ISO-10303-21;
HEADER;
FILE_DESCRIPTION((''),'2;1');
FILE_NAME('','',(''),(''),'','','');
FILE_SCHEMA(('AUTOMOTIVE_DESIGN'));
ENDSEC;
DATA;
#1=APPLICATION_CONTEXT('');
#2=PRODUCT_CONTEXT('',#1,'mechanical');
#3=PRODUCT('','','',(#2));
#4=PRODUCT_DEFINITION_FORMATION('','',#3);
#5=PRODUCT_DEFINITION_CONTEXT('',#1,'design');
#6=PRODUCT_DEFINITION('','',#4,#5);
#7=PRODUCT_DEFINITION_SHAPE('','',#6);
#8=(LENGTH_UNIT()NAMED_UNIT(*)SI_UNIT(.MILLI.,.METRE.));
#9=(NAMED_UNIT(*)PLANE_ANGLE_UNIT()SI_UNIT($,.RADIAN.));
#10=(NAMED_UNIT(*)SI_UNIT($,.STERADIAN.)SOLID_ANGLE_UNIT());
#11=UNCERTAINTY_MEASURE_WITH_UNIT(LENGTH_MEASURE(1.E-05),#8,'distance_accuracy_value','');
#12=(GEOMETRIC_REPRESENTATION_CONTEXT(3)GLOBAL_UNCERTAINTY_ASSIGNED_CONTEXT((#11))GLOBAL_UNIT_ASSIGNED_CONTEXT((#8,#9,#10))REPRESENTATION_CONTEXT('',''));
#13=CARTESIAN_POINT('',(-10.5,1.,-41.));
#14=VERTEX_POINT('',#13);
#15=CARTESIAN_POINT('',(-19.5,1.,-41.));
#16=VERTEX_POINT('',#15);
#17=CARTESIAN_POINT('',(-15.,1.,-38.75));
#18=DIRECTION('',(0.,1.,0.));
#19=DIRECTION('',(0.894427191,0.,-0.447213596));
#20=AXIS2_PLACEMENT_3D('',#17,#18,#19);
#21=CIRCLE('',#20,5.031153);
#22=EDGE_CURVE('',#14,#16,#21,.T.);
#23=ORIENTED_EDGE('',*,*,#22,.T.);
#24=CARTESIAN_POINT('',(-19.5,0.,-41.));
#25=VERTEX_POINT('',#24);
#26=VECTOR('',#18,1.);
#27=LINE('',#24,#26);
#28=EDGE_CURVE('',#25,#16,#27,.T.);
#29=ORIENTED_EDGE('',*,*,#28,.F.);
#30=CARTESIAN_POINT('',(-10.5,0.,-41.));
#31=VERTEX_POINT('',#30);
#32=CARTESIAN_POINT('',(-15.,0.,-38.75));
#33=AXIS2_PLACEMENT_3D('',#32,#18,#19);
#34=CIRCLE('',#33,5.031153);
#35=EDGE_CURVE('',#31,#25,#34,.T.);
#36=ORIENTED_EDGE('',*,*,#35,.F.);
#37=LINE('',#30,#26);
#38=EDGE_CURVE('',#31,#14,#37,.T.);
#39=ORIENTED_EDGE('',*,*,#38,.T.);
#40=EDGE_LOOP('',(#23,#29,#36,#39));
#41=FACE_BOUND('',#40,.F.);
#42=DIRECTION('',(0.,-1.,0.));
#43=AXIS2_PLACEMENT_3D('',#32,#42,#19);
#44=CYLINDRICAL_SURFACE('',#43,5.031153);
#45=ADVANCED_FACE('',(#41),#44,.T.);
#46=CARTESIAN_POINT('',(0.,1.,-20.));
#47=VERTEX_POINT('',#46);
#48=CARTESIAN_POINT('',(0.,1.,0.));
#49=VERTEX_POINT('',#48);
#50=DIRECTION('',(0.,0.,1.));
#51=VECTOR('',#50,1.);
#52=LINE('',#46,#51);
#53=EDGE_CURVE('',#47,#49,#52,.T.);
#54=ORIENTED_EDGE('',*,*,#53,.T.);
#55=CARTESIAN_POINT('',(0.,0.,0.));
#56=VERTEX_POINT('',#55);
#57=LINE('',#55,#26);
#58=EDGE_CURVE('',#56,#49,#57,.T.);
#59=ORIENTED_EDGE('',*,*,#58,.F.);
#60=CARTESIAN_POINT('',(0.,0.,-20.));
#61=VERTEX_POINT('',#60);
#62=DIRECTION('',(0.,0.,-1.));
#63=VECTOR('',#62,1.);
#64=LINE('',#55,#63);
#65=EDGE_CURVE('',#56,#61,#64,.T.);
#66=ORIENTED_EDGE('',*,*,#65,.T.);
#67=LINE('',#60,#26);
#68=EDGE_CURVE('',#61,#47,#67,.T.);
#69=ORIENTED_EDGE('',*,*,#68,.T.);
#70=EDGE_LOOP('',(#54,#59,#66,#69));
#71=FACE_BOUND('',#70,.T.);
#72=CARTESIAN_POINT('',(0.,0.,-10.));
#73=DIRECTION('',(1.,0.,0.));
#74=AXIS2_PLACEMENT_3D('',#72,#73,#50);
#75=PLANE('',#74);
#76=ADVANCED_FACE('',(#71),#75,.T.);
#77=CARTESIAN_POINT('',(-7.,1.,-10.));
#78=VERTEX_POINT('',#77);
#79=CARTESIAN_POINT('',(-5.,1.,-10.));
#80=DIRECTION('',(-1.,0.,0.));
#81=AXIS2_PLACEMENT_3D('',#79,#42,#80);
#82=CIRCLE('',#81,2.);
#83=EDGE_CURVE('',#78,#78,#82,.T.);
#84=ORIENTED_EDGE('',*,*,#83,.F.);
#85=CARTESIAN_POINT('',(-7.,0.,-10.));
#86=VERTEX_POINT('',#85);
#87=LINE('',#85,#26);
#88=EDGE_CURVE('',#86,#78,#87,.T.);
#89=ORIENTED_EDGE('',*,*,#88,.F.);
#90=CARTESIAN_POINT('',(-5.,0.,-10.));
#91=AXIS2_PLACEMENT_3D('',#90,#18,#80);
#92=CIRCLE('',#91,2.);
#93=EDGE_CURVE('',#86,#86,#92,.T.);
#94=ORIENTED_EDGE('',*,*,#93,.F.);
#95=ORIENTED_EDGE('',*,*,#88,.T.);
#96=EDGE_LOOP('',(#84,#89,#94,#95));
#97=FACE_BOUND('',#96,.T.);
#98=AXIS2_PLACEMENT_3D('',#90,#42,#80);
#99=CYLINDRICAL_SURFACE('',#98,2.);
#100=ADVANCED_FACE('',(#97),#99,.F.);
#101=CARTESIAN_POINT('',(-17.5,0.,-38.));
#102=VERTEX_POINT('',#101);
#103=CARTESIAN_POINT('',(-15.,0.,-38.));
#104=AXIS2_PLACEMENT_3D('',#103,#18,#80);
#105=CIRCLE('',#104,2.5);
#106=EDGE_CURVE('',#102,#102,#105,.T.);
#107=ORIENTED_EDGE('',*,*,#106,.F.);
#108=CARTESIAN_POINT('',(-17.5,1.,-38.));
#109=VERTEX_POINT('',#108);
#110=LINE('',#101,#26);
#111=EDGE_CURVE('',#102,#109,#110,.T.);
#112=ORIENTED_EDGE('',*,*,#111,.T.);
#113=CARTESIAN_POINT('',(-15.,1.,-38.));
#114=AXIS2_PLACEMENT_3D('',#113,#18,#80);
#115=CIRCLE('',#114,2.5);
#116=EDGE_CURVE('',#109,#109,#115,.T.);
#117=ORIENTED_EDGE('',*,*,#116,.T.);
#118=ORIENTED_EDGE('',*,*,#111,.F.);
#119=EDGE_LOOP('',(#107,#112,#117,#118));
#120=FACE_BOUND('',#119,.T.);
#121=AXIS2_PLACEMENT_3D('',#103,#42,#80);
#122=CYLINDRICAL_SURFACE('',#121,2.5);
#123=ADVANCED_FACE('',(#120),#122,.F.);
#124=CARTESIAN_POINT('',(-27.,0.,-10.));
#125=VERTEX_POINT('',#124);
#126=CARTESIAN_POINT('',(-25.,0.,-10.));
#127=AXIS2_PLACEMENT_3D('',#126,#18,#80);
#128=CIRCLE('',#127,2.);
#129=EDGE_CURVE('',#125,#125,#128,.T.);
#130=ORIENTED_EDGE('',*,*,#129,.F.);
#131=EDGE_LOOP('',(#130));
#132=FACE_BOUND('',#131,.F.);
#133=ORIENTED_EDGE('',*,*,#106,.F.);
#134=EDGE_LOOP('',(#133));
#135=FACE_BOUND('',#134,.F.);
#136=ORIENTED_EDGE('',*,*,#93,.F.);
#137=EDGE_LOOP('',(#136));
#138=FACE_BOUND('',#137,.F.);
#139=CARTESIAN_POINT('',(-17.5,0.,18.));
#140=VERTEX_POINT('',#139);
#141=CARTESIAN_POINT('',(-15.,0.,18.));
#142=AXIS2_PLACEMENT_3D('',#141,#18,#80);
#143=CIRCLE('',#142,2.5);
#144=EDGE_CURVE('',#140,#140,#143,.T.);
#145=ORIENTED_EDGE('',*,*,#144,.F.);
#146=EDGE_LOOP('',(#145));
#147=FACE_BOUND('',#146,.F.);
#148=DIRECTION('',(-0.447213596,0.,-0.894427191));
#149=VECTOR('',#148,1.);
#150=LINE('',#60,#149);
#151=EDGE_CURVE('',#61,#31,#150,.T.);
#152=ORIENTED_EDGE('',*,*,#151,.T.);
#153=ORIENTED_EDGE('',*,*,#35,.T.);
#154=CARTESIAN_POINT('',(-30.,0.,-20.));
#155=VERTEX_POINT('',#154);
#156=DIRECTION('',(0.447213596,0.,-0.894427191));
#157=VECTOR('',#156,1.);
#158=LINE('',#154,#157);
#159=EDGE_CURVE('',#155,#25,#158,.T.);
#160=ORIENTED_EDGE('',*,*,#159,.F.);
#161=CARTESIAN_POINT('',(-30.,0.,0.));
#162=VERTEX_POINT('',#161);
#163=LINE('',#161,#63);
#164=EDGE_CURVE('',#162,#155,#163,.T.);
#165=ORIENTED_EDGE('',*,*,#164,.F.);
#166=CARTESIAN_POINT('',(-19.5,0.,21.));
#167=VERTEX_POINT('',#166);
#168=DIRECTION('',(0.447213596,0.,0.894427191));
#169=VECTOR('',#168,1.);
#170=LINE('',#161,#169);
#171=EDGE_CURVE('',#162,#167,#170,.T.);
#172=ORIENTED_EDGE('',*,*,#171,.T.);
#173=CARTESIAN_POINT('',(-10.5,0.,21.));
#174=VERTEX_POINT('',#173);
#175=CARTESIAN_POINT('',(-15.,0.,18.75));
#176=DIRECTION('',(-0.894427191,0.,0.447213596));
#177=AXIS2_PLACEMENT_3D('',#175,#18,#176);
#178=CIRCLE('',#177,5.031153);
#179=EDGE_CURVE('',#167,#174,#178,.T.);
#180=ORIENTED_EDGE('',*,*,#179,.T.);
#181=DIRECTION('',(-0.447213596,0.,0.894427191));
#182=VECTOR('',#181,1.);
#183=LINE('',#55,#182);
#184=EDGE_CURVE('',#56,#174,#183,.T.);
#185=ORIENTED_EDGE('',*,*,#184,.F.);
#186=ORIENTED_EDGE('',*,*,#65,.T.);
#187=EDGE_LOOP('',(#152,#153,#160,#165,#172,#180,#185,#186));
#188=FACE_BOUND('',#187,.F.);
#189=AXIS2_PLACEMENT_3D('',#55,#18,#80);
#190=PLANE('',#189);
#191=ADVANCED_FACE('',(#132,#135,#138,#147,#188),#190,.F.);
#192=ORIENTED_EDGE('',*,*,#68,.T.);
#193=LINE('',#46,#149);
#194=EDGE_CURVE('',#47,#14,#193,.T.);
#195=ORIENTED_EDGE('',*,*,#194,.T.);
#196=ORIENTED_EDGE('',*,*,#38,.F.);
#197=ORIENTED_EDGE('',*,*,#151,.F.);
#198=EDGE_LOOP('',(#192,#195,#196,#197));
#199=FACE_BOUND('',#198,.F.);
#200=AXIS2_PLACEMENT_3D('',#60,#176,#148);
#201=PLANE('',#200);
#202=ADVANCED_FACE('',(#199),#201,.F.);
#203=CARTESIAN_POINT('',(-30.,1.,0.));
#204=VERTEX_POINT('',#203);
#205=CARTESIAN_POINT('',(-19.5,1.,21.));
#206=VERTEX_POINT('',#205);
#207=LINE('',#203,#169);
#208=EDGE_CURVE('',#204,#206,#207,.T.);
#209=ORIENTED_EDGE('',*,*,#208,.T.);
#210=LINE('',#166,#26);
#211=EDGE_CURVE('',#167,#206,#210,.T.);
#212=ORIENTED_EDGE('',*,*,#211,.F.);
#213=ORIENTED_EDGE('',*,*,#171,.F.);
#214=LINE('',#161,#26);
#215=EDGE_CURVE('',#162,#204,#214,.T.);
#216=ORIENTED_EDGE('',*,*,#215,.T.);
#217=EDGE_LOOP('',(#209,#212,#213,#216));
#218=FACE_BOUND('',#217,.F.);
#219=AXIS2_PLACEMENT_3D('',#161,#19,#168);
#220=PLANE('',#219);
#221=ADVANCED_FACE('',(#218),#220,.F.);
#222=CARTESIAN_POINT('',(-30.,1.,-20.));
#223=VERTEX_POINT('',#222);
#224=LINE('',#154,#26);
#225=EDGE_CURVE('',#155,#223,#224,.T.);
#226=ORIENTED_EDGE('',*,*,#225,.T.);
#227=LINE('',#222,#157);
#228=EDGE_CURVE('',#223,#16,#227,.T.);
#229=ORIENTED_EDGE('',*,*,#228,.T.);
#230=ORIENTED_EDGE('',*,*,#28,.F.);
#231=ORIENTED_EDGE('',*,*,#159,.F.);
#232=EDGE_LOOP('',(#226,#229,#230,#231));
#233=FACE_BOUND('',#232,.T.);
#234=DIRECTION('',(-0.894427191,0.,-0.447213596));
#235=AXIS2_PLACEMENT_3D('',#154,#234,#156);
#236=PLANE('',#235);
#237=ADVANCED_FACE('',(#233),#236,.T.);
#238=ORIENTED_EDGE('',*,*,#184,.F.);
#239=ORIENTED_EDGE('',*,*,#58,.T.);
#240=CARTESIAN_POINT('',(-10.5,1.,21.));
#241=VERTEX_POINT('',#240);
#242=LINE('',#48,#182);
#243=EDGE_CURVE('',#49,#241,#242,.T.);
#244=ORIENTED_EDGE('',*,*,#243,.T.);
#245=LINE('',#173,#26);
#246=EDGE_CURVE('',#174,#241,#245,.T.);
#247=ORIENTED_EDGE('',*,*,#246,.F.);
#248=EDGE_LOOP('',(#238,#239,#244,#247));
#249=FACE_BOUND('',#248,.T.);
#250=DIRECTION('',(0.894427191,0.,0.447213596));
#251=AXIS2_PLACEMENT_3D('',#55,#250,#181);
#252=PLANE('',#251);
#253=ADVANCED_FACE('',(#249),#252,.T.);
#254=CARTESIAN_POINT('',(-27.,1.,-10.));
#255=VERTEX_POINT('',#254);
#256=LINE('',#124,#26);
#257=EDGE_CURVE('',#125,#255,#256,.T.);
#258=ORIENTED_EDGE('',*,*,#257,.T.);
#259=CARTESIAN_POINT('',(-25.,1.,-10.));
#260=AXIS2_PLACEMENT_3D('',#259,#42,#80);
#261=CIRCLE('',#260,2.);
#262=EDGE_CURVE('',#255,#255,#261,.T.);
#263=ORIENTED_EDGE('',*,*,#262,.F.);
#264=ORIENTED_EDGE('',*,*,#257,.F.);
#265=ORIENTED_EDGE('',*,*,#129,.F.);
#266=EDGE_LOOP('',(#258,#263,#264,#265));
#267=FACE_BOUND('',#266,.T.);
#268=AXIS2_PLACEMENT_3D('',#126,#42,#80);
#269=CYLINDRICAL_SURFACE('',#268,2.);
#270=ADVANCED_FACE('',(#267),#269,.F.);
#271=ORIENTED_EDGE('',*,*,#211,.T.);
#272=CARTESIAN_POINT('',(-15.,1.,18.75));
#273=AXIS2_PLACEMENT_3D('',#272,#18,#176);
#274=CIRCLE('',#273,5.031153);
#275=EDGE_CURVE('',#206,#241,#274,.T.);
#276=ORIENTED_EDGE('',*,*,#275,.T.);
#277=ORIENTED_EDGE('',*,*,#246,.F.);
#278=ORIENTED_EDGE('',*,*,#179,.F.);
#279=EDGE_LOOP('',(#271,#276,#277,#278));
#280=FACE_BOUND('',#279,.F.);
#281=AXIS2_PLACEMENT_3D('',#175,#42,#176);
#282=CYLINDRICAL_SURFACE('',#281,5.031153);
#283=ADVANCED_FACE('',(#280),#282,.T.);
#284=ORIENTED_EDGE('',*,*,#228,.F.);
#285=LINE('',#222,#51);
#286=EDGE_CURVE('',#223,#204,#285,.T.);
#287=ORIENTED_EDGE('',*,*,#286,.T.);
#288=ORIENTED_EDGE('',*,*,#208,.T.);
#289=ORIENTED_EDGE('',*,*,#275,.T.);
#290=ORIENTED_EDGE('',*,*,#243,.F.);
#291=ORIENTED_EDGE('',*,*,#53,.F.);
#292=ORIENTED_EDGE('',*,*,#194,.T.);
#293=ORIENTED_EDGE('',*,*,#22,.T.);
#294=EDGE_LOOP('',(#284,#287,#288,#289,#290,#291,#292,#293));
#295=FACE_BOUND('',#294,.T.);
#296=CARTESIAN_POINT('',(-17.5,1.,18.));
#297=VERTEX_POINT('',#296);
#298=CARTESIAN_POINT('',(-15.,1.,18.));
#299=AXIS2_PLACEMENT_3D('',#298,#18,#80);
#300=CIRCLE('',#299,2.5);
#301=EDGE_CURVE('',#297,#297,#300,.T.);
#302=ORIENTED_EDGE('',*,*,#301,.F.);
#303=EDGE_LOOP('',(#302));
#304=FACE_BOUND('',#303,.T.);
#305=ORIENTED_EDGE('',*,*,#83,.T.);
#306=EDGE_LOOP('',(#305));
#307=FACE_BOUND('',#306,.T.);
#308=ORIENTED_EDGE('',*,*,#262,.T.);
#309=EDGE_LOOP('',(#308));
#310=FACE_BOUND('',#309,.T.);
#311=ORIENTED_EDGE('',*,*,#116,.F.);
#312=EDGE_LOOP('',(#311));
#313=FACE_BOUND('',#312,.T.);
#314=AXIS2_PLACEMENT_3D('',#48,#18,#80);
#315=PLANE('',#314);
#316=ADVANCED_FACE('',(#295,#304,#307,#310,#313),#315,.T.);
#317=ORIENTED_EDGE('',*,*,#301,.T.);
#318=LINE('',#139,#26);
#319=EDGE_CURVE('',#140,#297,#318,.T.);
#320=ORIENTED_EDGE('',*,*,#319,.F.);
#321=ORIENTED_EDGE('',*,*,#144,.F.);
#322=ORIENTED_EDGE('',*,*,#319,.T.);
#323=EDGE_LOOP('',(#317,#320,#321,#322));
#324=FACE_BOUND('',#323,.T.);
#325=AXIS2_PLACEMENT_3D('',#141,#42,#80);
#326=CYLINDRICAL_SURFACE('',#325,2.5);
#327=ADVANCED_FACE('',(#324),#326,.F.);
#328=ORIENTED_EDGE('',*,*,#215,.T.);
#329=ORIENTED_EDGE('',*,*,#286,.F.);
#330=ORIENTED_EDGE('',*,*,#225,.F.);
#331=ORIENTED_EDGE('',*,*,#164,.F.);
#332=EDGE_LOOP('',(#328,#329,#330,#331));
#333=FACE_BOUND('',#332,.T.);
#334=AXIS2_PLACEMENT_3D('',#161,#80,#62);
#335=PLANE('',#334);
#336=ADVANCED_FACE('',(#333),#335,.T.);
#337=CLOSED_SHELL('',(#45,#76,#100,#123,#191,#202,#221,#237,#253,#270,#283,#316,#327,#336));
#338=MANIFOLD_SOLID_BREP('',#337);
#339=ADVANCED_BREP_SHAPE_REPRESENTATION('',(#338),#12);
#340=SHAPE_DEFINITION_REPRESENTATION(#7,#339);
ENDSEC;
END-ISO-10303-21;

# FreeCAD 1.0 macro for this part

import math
import FreeCAD as App
import Part
import Sketcher

V = App.Vector
Q = App.Units.Quantity

doc = App.newDocument("Part")
body = doc.addObject("PartDesign::Body", "Body")

# Sketch on XZ plane
sketch1 = body.newObject("Sketcher::SketchObject", "Sketch")
sketch1.AttachmentSupport = (doc.getObject("XZ_Plane"), [""])
sketch1.MapMode = "FlatFace"
sketch1.addGeometry([
    Part.LineSegment(V(-10.5, 21, 0), V(0, 0, 0)),  # 0
    Part.LineSegment(V(0, 0, 0), V(0, -20, 0)),  # 1
    Part.LineSegment(V(0, -20, 0), V(-10.5, -41, 0)),  # 2
    Part.ArcOfCircle(Part.Circle(V(-15, -38.8, 0), V(0, 0, 1), 5), math.radians(-153), math.radians(-27)),  # 3
    Part.LineSegment(V(-19.5, -41, 0), V(-30, -20, 0)),  # 4
    Part.LineSegment(V(-30, -20, 0), V(-30, 0, 0)),  # 5
    Part.LineSegment(V(-30, 0, 0), V(-19.5, 21, 0)),  # 6
    Part.ArcOfCircle(Part.Circle(V(-15, 18.8, 0), V(0, 0, 1), 5), math.radians(27), math.radians(153)),  # 7
    Part.Circle(V(-15, 18, 0), V(0, 0, 1), 2.5),  # 8
    Part.Circle(V(-25, -10, 0), V(0, 0, 1), 2),  # 9
    Part.Circle(V(-5, -10, 0), V(0, 0, 1), 2),  # 10
    Part.Circle(V(-15, -38, 0), V(0, 0, 1), 2.5),  # 11
], False)
sketch1.addConstraint([
    Sketcher.Constraint("Coincident", 0, 2, 1, 1),
    Sketcher.Constraint("Coincident", 1, 2, 2, 1),
    Sketcher.Constraint("Tangent", 2, 2, 3, 2),
    Sketcher.Constraint("Tangent", 3, 1, 4, 1),
    Sketcher.Constraint("Coincident", 4, 2, 5, 1),
    Sketcher.Constraint("Coincident", 5, 2, 6, 1),
    Sketcher.Constraint("Tangent", 6, 2, 7, 2),
    Sketcher.Constraint("Tangent", 7, 1, 0, 1),
    Sketcher.Constraint("Vertical", 1),
    Sketcher.Constraint("Vertical", 5),
    Sketcher.Constraint("Coincident", 0, 2, -1, 1),
    Sketcher.Constraint("Equal", 3, 7),
    Sketcher.Constraint("Equal", 9, 10),
    Sketcher.Constraint("Equal", 8, 11),
    Sketcher.Constraint("PointOnObject", 5, 2, -1),
    Sketcher.Constraint("Parallel", 0, 4),
    Sketcher.Constraint("Parallel", 2, 6),
    Sketcher.Constraint("Horizontal", 9, 3, 10, 3),
    Sketcher.Constraint("Horizontal", 2, 2, 3, 1),
    Sketcher.Constraint("Horizontal", 1, 2, 4, 2),
    Sketcher.Constraint("Vertical", 7, 3, 8, 3),
    Sketcher.Constraint("Vertical", 8, 3, 11, 3),
    Sketcher.Constraint("Diameter", 8, Q("5 mm")),
    Sketcher.Constraint("Diameter", 9, Q("4 mm")),
    Sketcher.Constraint("DistanceY", 1, 2, 1, 1, Q("20 mm")),
    Sketcher.Constraint("DistanceY", -1, 1, 8, 3, Q("18 mm")),
    Sketcher.Constraint("DistanceX", 10, 3, -1, 1, Q("5 mm")),
    Sketcher.Constraint("DistanceX", 4, 2, -1, 1, Q("30 mm")),
    Sketcher.Constraint("DistanceY", -1, 1, 6, 2, Q("21 mm")),
    Sketcher.Constraint("DistanceX", 9, 3, 10, 3, Q("20 mm")),
    Sketcher.Constraint("DistanceY", 11, 3, 1, 2, Q("18 mm")),
    Sketcher.Constraint("DistanceX", 2, 2, -1, 1, Q("10.5 mm")),
    Sketcher.Constraint("DistanceY", 9, 3, -1, 1, Q("10 mm")),
])
pad1 = body.newObject("PartDesign::Pad", "Pad")
pad1.Profile = sketch1
pad1.Length = 1
pad1.Reversed = True

doc.recompute()
